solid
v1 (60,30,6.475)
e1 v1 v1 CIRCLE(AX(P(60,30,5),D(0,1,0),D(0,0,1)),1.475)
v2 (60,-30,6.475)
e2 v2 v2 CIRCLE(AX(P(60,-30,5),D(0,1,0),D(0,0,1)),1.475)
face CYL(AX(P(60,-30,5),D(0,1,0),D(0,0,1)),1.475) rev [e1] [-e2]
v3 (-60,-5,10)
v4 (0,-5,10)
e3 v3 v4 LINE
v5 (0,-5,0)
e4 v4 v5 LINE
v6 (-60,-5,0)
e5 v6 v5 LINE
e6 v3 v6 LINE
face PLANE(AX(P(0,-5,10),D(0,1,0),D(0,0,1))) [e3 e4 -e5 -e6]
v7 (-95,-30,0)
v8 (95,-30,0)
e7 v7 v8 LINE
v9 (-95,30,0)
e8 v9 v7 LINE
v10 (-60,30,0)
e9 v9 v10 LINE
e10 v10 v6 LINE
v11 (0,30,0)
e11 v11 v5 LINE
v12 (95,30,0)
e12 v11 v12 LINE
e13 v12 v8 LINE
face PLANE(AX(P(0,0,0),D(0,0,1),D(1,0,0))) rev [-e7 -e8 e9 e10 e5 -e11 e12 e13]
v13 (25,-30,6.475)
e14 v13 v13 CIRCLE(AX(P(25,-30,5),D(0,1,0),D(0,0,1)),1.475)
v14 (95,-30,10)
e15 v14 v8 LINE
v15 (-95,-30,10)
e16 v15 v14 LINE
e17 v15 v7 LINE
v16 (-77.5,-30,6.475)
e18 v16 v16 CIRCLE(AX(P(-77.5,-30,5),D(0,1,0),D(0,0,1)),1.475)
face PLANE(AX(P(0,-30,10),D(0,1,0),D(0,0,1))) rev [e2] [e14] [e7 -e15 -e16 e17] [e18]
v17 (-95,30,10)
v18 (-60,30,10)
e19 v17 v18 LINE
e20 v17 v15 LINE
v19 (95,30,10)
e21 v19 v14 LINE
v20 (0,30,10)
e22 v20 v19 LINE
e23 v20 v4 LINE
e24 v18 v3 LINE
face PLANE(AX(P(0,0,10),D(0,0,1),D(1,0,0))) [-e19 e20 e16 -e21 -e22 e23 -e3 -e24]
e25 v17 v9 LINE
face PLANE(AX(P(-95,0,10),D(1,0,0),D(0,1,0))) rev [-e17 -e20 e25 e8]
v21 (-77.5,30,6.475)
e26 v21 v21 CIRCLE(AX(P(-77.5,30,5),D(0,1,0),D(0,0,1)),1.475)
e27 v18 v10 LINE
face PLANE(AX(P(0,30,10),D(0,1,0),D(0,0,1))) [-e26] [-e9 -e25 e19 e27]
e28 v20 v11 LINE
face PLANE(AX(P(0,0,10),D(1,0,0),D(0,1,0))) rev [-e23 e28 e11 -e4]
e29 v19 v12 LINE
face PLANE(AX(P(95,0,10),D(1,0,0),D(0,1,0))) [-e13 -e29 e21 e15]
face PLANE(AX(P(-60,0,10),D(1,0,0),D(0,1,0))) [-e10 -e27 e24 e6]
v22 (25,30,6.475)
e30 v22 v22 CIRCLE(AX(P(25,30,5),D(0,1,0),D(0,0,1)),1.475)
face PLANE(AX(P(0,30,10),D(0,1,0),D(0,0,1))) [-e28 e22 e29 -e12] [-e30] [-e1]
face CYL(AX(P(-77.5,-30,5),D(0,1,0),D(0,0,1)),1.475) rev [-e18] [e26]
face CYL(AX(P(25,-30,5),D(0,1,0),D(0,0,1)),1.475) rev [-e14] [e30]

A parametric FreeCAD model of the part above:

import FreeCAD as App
import Part
import Sketcher
Q = App.Units.Quantity

doc = App.newDocument("Part")
params = doc.addObject("Spreadsheet::Sheet", "Params")
for row, (alias, value) in enumerate([
    ("sketch1_width", "35 mm"),
    ("sketch1_width2", "190 mm"),
    ("pad1_length", "10 mm"),
    ("sketch2_diameter", "2.95 mm"),
], start=1):
    params.set(f"A{row}", alias)
    params.set(f"B{row}", "=" + value)
    params.setAlias(f"B{row}", alias)

body = doc.addObject("PartDesign::Body", "Body")

sketch1 = body.newObject("Sketcher::SketchObject", "Sketch")
sketch1.AttachmentSupport = (doc.getObject("XY_Plane"), [""])
sketch1.MapMode = "FlatFace"
sketch1.addGeometry([
    Part.LineSegment(App.Vector(-60, 30, 0), App.Vector(-95, 30, 0)),
    Part.LineSegment(App.Vector(-95, 30, 0), App.Vector(-95, -30, 0)),
    Part.LineSegment(App.Vector(-95, -30, 0), App.Vector(95, -30, 0)),
    Part.LineSegment(App.Vector(95, -30, 0), App.Vector(95, 30, 0)),
    Part.LineSegment(App.Vector(95, 30, 0), App.Vector(0, 30, 0)),
    Part.LineSegment(App.Vector(0, 30, 0), App.Vector(0, -5, 0)),
    Part.LineSegment(App.Vector(0, -5, 0), App.Vector(-60, -5, 0)),
    Part.LineSegment(App.Vector(-60, -5, 0), App.Vector(-60, 30, 0)),
], False)
sketch1.addConstraint([
    Sketcher.Constraint("Coincident", 0, 2, 1, 1),
    Sketcher.Constraint("Coincident", 1, 2, 2, 1),
    Sketcher.Constraint("Coincident", 2, 2, 3, 1),
    Sketcher.Constraint("Coincident", 3, 2, 4, 1),
    Sketcher.Constraint("Coincident", 4, 2, 5, 1),
    Sketcher.Constraint("Coincident", 5, 2, 6, 1),
    Sketcher.Constraint("Coincident", 6, 2, 7, 1),
    Sketcher.Constraint("Coincident", 7, 2, 0, 1),
    Sketcher.Constraint("Horizontal", 0),
    Sketcher.Constraint("Vertical", 1),
    Sketcher.Constraint("Horizontal", 2),
    Sketcher.Constraint("Vertical", 3),
    Sketcher.Constraint("Horizontal", 4),
    Sketcher.Constraint("Vertical", 5),
    Sketcher.Constraint("Horizontal", 6),
    Sketcher.Constraint("Vertical", 7),
    Sketcher.Constraint("Symmetric", 0, 2, 2, 2, -1, 1),
    Sketcher.Constraint("PointOnObject", 4, 2, -2),
    Sketcher.Constraint("Horizontal", 0, 2, 3, 2),
    Sketcher.Constraint("Equal", 6, 1),
    Sketcher.Constraint("Equal", 0, 5),
    Sketcher.Constraint("DistanceX", 0, 2, 0, 1, Q("35 mm")),
    Sketcher.Constraint("DistanceX", 2, 1, 2, 2, Q("190 mm")),
])
sketch1.setExpression("Constraints[21]", "Params.sketch1_width")
sketch1.setExpression("Constraints[22]", "Params.sketch1_width2")
pad1 = body.newObject("PartDesign::Pad", "Pad")
pad1.Profile = sketch1
pad1.setExpression("Length", "Params.pad1_length")

sketch2 = body.newObject("Sketcher::SketchObject", "Sketch001")
sketch2.AttachmentSupport = (doc.getObject("XZ_Plane"), [""])
sketch2.MapMode = "FlatFace"
sketch2.AttachmentOffset = App.Placement(App.Vector(0, 0, -30), App.Rotation())
sketch2.addGeometry([
    Part.Circle(App.Vector(-77.5, 5, 0), App.Vector(0, 0, 1), 1.5),
    Part.Circle(App.Vector(60, 5, 0), App.Vector(0, 0, 1), 1.5),
    Part.Circle(App.Vector(25, 5, 0), App.Vector(0, 0, 1), 1.5),
], False)
sketch2.addConstraint([
    Sketcher.Constraint("Equal", 0, 1),
    Sketcher.Constraint("Equal", 1, 2),
    Sketcher.Constraint("Horizontal", 0, 3, 1, 3),
    Sketcher.Constraint("Horizontal", 1, 3, 2, 3),
    Sketcher.Constraint("Diameter", 0, Q("2.95 mm")),
    Sketcher.Constraint("DistanceY", -1, 1, 0, 3, Q("5 mm")),
    Sketcher.Constraint("DistanceX", -1, 1, 1, 3, Q("60 mm")),
    Sketcher.Constraint("DistanceX", -1, 1, 2, 3, Q("25 mm")),
    Sketcher.Constraint("DistanceX", 0, 3, -1, 1, Q("77.5 mm")),
])
sketch2.setExpression("Constraints[4]", "Params.sketch2_diameter")
pocket1 = body.newObject("PartDesign::Pocket", "Pocket")
pocket1.Profile = sketch2
pocket1.Type = "ThroughAll"
pocket1.Reversed = True

doc.recompute()
